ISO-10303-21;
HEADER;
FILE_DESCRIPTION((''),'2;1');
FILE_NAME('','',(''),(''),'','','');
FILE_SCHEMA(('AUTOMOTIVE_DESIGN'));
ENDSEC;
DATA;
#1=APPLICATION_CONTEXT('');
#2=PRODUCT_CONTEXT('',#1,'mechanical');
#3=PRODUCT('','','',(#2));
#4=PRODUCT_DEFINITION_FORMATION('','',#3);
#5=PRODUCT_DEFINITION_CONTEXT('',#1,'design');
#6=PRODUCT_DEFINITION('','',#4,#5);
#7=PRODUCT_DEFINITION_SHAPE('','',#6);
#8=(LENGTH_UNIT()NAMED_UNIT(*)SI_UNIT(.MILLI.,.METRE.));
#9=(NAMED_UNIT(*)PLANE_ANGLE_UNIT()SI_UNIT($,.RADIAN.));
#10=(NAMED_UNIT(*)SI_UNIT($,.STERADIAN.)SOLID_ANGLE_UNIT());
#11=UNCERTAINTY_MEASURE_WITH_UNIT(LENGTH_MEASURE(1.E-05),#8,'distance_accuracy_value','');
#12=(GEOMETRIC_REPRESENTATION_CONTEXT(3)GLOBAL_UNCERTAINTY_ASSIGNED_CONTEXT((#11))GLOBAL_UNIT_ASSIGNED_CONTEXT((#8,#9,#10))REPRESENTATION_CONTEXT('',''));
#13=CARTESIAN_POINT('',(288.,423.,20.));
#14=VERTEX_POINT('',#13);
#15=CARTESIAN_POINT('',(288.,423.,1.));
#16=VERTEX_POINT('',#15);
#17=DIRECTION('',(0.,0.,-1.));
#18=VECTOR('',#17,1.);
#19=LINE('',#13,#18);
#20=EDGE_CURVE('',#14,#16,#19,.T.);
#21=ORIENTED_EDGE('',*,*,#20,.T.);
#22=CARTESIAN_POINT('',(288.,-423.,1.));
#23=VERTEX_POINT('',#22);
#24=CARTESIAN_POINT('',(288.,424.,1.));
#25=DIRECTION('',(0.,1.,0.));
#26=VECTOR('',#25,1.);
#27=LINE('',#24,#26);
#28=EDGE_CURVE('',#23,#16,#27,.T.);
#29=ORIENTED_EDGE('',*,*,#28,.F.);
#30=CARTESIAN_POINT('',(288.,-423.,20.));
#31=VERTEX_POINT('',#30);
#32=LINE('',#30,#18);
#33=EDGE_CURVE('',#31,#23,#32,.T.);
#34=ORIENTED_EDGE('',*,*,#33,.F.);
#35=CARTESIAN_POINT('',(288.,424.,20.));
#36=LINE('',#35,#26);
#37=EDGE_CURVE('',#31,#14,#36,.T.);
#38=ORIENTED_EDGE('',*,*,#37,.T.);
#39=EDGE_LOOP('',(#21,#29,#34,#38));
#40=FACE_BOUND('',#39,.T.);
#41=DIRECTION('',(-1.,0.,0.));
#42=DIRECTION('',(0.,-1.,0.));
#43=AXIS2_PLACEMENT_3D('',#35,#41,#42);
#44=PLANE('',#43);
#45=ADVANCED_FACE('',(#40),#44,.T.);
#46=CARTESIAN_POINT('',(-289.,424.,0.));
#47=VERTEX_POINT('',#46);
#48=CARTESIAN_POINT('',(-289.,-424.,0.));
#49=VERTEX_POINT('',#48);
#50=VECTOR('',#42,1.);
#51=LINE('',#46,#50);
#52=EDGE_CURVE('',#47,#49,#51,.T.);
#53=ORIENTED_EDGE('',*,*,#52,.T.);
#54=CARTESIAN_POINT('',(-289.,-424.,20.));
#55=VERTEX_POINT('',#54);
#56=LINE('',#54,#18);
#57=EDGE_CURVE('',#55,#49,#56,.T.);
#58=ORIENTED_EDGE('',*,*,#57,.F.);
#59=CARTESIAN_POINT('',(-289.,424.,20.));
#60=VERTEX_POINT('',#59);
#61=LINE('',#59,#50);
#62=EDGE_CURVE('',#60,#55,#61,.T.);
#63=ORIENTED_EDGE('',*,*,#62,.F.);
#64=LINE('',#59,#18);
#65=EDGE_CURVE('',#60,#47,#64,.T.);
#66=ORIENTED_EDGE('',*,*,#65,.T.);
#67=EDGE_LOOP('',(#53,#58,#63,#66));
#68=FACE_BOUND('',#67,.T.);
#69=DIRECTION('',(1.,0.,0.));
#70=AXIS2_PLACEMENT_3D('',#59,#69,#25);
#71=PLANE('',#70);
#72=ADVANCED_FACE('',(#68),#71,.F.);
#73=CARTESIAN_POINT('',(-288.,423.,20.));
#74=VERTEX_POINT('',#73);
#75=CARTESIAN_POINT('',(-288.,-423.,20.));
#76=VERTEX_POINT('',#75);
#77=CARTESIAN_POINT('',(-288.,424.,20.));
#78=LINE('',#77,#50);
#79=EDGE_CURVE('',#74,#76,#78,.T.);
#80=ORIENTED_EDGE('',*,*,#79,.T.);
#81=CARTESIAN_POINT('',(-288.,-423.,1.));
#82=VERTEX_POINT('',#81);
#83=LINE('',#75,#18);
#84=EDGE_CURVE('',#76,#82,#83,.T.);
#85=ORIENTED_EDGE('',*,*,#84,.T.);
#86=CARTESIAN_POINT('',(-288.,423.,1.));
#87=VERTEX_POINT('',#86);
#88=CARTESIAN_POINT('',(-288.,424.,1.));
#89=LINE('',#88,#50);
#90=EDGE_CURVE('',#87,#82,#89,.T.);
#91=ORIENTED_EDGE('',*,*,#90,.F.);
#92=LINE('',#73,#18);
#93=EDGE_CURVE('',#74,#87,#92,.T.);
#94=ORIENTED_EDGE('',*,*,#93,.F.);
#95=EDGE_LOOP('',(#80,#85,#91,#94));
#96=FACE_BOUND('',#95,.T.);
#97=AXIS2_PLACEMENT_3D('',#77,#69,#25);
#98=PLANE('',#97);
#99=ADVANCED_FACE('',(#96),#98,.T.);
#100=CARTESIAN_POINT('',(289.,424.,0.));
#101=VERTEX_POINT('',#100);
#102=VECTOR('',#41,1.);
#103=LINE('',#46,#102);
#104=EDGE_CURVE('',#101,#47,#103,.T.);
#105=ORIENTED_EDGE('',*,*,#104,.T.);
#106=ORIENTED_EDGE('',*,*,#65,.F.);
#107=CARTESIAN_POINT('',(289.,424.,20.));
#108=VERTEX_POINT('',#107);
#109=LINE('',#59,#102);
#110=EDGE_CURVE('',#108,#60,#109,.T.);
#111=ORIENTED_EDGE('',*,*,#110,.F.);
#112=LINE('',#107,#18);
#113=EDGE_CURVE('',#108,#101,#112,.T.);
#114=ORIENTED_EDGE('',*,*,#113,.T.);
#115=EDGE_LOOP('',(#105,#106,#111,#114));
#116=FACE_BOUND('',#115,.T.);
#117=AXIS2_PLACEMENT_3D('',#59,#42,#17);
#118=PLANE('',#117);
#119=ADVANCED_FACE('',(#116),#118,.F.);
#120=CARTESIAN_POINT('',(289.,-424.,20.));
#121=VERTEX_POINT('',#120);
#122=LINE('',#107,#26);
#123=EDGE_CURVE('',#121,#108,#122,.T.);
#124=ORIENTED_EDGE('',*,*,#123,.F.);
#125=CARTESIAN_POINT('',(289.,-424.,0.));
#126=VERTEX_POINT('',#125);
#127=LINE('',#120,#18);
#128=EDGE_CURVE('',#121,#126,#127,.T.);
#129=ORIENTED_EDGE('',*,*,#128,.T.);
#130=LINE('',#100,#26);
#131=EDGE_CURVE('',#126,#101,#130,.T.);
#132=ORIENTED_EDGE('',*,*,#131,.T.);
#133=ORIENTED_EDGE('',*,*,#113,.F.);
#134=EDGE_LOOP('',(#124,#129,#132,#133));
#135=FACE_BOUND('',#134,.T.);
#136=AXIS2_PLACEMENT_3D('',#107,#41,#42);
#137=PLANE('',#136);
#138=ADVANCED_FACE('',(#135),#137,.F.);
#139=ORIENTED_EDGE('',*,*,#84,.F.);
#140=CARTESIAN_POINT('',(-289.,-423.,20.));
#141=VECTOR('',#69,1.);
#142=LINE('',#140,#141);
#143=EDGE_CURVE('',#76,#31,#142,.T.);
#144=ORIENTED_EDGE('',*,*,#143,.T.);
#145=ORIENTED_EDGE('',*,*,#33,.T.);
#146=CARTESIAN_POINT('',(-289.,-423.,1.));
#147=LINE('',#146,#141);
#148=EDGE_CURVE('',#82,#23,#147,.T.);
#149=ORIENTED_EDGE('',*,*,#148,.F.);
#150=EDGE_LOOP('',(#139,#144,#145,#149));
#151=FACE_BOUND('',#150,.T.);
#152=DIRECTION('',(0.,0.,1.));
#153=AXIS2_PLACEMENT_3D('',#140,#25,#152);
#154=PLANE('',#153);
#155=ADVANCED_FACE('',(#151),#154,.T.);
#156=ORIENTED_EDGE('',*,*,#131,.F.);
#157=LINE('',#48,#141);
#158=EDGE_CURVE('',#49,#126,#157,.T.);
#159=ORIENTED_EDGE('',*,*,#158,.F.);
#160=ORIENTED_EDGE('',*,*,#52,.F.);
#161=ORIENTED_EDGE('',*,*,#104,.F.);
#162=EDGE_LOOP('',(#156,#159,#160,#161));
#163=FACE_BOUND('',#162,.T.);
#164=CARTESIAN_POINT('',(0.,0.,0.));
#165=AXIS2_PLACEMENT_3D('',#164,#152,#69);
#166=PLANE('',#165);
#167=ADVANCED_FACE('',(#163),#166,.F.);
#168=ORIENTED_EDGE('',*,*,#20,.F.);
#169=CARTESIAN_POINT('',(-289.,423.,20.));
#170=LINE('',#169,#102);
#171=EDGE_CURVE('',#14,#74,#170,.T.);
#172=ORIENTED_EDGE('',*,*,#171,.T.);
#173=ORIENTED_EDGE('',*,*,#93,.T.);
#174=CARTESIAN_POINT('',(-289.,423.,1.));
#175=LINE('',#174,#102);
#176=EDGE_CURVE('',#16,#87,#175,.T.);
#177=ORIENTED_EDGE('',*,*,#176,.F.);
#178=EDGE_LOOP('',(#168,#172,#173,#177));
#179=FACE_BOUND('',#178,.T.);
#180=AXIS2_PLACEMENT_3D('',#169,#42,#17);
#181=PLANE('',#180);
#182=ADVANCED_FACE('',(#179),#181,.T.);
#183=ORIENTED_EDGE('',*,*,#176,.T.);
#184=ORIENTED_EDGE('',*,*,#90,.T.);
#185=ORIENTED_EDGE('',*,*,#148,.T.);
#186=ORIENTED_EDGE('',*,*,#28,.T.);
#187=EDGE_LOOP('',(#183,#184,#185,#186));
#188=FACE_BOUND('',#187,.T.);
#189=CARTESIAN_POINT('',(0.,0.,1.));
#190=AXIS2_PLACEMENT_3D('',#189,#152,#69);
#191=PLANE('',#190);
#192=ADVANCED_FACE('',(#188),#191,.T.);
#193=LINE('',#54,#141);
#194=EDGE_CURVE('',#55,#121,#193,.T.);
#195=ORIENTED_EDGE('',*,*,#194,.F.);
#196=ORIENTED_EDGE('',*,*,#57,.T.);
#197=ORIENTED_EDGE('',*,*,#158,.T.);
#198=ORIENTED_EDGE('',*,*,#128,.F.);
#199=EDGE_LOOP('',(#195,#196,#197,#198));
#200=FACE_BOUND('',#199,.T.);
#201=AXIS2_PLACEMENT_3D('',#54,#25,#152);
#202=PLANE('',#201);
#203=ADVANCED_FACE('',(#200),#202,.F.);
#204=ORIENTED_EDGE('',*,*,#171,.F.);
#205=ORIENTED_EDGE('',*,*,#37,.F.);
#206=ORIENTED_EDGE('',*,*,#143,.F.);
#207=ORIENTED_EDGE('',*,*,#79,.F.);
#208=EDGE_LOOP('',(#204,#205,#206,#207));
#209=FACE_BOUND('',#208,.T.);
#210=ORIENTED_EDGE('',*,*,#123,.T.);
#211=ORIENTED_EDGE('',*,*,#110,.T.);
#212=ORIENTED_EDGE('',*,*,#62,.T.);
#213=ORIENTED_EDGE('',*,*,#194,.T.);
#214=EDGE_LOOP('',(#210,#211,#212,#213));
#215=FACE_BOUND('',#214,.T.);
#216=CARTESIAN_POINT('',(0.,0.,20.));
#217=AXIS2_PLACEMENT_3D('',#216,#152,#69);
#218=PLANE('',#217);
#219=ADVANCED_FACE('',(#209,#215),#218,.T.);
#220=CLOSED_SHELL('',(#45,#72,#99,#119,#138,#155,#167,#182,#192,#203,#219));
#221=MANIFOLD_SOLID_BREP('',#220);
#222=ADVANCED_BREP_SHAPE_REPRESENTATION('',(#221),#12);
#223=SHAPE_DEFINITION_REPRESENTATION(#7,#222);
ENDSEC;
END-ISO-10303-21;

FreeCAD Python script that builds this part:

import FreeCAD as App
import Part
import Sketcher

V = App.Vector


def faces_at(feature, points):
    """Names of the faces that lie closest to the given points."""
    faces = feature.Shape.Faces
    near = lambda p: min(range(len(faces)), key=lambda i: faces[i].distToShape(Part.Vertex(*p))[0])
    return sorted({f"Face{near(p) + 1}" for p in points})


def add_polygon(sketch, points):
    """Adds a closed chain of lines whose ends are joined by coincident constraints."""
    first, n = sketch.GeometryCount, len(points)
    for a, b in zip(points, points[1:] + points[:1]):
        sketch.addGeometry(Part.LineSegment(App.Vector(*a, 0), App.Vector(*b, 0)), False)
    for i in range(n):
        sketch.addConstraint(Sketcher.Constraint("Coincident", first + i, 2, first + (i + 1) % n, 1))

doc = App.newDocument("Part")
params = doc.addObject("Spreadsheet::Sheet", "Params")
for row, (alias, value) in enumerate([
    ("sketch1_width", "578 mm"),
    ("sketch1_height", "848 mm"),
    ("pad1_length", "20 mm"),
    ("thickness_wall", "1 mm"),
], start=1):
    params.set(f"A{row}", alias)
    params.set(f"B{row}", "=" + value)
    params.setAlias(f"B{row}", alias)

body = doc.addObject("PartDesign::Body", "Body")

# Sketch on XY plane
sketch1 = body.newObject("Sketcher::SketchObject", "Sketch")
sketch1.AttachmentSupport = (doc.getObject("XY_Plane"), [""])
sketch1.MapMode = "FlatFace"
add_polygon(sketch1, [(-289, 424), (-289, -424), (289, -424), (289, 424)])  # lines 0-3
sketch1.addConstraint(Sketcher.Constraint("Vertical", 0))
sketch1.addConstraint(Sketcher.Constraint("Horizontal", 1))
sketch1.addConstraint(Sketcher.Constraint("Vertical", 2))
sketch1.addConstraint(Sketcher.Constraint("Horizontal", 3))
sketch1.addConstraint(Sketcher.Constraint("Symmetric", 0, 2, 2, 2, -1, 1))
sketch1.addConstraint(Sketcher.Constraint("DistanceX", 1, 1, 1, 2, 578.0))
sketch1.addConstraint(Sketcher.Constraint("DistanceY", 0, 2, 0, 1, 848.0))
sketch1.setExpression("Constraints[9]", "Params.sketch1_width")
sketch1.setExpression("Constraints[10]", "Params.sketch1_height")
pad1 = body.newObject("PartDesign::Pad", "Pad")
pad1.Profile = sketch1
pad1.setExpression("Length", "Params.pad1_length")
doc.recompute()

thickness = body.newObject("PartDesign::Thickness", "Thickness")
thickness.Base = (pad1, faces_at(pad1, [(0, 0, 20)]))
thickness.setExpression("Value", "Params.thickness_wall")
thickness.Reversed = True
thickness.Join = "Intersection"

doc.recompute()
